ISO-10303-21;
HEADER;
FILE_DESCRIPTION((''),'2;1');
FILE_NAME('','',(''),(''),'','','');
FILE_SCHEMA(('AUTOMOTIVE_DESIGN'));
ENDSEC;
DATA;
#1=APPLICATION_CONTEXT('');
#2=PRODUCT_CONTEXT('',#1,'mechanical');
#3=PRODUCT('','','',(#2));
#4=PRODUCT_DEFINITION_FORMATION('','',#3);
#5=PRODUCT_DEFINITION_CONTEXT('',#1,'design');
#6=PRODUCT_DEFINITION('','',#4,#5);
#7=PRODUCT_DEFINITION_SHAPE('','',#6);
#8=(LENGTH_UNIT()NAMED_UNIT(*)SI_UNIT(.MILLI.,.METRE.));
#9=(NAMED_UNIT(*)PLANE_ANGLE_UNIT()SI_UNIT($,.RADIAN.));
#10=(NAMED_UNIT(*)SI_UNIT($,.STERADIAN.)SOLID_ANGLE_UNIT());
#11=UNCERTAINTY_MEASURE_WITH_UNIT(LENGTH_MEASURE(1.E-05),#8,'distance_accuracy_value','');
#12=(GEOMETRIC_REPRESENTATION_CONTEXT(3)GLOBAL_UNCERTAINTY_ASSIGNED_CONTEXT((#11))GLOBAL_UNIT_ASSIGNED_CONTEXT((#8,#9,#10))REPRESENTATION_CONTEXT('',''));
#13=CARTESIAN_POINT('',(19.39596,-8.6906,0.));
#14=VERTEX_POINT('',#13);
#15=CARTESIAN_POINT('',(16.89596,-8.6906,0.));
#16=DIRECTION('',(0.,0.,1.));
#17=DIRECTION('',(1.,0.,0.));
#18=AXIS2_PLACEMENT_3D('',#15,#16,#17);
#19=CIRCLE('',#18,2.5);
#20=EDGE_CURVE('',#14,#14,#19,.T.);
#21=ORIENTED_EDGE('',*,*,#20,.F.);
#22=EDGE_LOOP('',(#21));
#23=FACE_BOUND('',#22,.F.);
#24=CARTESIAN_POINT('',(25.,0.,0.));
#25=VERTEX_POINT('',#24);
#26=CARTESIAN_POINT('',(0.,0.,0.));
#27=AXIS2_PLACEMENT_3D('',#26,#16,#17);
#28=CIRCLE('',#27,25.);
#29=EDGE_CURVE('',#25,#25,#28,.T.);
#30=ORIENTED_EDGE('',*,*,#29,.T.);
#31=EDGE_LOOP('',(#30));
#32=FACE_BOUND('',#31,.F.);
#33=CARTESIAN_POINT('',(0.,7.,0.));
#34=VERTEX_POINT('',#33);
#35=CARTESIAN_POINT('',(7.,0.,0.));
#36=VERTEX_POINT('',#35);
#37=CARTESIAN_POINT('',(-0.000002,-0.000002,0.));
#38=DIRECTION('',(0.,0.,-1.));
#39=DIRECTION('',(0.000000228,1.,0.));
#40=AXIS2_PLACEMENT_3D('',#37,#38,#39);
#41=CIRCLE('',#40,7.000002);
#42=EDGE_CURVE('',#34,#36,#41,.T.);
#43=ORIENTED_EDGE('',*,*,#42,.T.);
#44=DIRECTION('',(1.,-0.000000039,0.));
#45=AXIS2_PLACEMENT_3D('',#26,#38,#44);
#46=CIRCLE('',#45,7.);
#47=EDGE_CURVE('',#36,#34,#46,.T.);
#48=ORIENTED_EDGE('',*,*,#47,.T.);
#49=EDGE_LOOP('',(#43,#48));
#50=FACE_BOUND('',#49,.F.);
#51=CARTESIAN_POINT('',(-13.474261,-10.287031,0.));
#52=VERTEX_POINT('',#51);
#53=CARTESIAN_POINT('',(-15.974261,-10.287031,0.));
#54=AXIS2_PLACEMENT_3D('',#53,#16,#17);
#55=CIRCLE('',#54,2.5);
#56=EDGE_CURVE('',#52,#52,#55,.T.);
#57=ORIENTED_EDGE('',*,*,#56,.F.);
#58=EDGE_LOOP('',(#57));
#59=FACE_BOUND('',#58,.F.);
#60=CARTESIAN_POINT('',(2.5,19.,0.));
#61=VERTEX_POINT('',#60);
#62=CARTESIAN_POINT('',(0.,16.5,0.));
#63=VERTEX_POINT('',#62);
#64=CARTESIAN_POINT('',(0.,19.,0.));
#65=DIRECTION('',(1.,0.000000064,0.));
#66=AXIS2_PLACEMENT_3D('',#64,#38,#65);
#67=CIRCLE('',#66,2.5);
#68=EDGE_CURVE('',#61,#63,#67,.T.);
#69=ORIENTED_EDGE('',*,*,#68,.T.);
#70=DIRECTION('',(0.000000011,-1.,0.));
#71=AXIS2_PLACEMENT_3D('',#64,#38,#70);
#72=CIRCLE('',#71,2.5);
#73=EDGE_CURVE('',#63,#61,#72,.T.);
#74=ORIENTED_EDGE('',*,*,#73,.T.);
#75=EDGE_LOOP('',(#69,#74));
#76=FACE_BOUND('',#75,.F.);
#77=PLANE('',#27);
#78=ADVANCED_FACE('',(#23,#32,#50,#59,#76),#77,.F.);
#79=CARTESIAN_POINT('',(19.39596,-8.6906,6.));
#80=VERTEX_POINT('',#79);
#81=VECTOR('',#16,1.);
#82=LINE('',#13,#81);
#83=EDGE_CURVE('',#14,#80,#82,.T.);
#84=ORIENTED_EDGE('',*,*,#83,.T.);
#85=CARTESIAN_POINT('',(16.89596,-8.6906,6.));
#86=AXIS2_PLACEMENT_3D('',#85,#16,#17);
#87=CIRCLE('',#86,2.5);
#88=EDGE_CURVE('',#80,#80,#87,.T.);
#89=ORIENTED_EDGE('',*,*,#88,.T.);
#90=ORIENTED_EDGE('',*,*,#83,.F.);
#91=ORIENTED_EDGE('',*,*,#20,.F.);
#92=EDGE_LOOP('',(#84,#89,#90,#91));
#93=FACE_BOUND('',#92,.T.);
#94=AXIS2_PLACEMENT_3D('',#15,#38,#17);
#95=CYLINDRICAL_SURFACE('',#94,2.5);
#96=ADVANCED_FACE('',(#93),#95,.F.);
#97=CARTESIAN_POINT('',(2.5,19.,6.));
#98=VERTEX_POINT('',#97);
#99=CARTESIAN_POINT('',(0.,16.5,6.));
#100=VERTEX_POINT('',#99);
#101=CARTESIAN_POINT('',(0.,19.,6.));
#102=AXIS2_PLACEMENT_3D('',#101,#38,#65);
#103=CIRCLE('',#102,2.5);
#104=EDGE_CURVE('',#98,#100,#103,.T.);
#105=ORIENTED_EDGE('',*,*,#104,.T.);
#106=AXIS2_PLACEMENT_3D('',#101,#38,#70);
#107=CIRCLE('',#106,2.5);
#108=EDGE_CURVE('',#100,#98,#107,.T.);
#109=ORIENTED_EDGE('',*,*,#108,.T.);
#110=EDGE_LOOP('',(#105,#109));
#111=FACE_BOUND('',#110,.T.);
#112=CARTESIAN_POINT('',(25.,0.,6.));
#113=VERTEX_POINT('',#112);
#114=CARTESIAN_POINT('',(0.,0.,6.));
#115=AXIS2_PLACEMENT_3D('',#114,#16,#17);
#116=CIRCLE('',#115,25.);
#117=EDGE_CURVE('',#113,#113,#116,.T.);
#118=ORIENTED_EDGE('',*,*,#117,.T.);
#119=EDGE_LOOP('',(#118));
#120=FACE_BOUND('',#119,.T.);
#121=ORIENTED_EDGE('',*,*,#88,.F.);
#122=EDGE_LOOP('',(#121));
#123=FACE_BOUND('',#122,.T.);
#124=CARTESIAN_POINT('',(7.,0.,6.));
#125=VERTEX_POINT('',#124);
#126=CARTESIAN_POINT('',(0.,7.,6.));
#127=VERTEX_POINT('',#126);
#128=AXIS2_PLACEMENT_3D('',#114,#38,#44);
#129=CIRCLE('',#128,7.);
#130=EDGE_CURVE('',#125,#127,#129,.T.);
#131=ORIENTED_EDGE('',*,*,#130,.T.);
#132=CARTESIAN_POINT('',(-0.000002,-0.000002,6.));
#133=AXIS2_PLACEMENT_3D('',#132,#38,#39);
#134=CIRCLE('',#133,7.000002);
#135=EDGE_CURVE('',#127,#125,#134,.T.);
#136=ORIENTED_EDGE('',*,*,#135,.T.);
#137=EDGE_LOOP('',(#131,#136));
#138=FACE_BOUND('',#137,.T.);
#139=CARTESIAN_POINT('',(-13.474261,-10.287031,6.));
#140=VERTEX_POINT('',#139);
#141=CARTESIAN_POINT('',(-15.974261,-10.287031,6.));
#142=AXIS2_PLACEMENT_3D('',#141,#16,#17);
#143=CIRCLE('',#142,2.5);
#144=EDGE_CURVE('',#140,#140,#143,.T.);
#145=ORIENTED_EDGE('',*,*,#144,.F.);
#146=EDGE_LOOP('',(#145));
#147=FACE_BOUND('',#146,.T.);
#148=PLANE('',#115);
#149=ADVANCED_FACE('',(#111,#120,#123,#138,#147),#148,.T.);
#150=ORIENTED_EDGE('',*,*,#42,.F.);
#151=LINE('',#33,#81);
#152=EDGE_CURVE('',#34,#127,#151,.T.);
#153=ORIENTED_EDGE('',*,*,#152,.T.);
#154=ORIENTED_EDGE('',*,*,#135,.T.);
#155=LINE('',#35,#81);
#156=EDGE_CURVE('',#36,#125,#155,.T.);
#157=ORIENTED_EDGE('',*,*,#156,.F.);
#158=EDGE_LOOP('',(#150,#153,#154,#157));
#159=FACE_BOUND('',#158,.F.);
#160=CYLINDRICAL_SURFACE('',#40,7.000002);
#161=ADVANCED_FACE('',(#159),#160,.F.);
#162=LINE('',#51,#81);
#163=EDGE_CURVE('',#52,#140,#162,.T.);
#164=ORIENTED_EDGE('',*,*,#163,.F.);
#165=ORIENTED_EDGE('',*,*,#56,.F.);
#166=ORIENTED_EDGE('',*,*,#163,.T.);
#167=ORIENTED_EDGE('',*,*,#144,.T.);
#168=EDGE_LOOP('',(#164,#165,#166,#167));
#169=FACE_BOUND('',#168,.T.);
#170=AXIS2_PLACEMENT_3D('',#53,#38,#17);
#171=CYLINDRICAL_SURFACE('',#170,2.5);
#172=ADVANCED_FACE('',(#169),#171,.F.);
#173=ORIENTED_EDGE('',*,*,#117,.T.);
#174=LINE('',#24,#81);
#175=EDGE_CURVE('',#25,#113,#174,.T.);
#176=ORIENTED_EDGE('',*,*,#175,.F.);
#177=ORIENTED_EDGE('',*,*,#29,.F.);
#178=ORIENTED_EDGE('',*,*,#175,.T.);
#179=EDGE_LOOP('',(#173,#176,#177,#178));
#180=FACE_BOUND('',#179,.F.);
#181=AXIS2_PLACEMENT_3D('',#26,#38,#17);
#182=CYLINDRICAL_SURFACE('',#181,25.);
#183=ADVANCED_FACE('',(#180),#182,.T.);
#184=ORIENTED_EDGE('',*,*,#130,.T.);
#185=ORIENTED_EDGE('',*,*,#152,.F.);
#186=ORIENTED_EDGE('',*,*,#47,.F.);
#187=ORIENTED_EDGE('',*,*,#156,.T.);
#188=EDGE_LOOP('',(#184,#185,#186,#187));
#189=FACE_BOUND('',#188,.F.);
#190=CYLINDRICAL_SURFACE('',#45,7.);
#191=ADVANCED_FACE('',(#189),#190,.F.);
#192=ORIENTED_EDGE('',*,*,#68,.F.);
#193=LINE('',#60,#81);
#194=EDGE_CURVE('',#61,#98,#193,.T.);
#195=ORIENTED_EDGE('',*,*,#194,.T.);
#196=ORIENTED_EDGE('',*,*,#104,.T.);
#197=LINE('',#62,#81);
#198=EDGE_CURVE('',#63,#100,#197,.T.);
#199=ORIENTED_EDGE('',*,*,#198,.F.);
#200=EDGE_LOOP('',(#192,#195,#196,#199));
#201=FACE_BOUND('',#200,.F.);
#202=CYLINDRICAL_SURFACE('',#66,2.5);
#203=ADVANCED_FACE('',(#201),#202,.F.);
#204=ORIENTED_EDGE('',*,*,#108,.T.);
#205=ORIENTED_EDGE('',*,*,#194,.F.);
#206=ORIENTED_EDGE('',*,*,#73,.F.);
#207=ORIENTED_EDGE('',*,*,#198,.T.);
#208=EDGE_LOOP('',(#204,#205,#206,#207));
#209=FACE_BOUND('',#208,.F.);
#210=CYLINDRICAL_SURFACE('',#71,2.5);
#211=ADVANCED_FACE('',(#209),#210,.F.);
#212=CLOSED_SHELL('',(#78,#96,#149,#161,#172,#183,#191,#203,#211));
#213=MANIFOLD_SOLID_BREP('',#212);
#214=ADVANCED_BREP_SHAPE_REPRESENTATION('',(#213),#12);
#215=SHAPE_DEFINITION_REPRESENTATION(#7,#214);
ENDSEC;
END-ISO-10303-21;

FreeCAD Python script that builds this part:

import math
import FreeCAD as App
import Part
import Sketcher
from FreeCAD import Vector
Q = App.Units.Quantity

doc = App.newDocument("Part")
params = doc.addObject("Spreadsheet::Sheet", "Params")
for row, (alias, value) in enumerate([
    ("sketch1_diameter", "50 mm"),
    ("sketch1_diameter2", "5 mm"),
    ("sketch1_radius", "7 mm"),
    ("pad1_length", "6 mm"),
], start=1):
    params.set(f"A{row}", alias)
    params.set(f"B{row}", "=" + value)
    params.setAlias(f"B{row}", alias)

body = doc.addObject("PartDesign::Body", "Body")

# Sketch on XY plane
sketch1 = body.newObject("Sketcher::SketchObject", "Sketch")
sketch1.AttachmentSupport = (doc.getObject("XY_Plane"), [""])
sketch1.MapMode = "FlatFace"
sketch1.addGeometry([
    Part.Circle(Vector(0, 0, 0), Vector(0, 0, 1), 25),  # 0
    Part.Circle(Vector(-16, -10.3, 0), Vector(0, 0, 1), 2.5),  # 1
    Part.ArcOfCircle(Part.Circle(Vector(0, 0, 0), Vector(0, 0, 1), 7), math.radians(90), math.radians(360)),  # 2
    Part.ArcOfCircle(Part.Circle(Vector(0, 0, 0), Vector(0, 0, 1), 7), math.radians(0), math.radians(90)),  # 3
    Part.Circle(Vector(16.9, -8.7, 0), Vector(0, 0, 1), 2.5),  # 4
    Part.ArcOfCircle(Part.Circle(Vector(0, 19, 0), Vector(0, 0, 1), 2.5), math.radians(0), math.radians(270)),  # 5
    Part.ArcOfCircle(Part.Circle(Vector(0, 19, 0), Vector(0, 0, 1), 2.5), math.radians(-90), math.radians(0)),  # 6
], False)
sketch1.addConstraint([
    Sketcher.Constraint("Tangent", 2, 1, 3, 2),
    Sketcher.Constraint("Coincident", 3, 1, 2, 2),
    Sketcher.Constraint("Tangent", 5, 1, 6, 2),
    Sketcher.Constraint("Coincident", 6, 1, 5, 2),
    Sketcher.Constraint("Coincident", 0, 3, -1, 1),
    Sketcher.Constraint("Coincident", 2, 3, -1, 1),
    Sketcher.Constraint("Equal", 1, 4),
    Sketcher.Constraint("Equal", 4, 5),
    Sketcher.Constraint("PointOnObject", 5, 3, -2),
    Sketcher.Constraint("PointOnObject", 2, 1, -2),
    Sketcher.Constraint("PointOnObject", 3, 1, -1),
    Sketcher.Constraint("PointOnObject", 6, 1, -2),
    Sketcher.Constraint("Horizontal", 6, 3, 5, 1),
    Sketcher.Constraint("Diameter", 0, Q("50 mm")),
    Sketcher.Constraint("Diameter", 1, Q("5 mm")),
    Sketcher.Constraint("Radius", 2, Q("7 mm")),
    Sketcher.Constraint("DistanceY", -1, 1, 5, 3, Q("19 mm")),
    Sketcher.Constraint("DistanceY", 4, 3, -1, 1, Q("8.6906 mm")),
    Sketcher.Constraint("DistanceX", 1, 3, -1, 1, Q("15.974261 mm")),
    Sketcher.Constraint("DistanceY", 1, 3, -1, 1, Q("10.287031 mm")),
    Sketcher.Constraint("DistanceX", -1, 1, 4, 3, Q("16.89596 mm")),
])
sketch1.setExpression("Constraints[13]", "Params.sketch1_diameter")
sketch1.setExpression("Constraints[14]", "Params.sketch1_diameter2")
sketch1.setExpression("Constraints[15]", "Params.sketch1_radius")
pad1 = body.newObject("PartDesign::Pad", "Pad")
pad1.Profile = sketch1
pad1.setExpression("Length", "Params.pad1_length")

doc.recompute()
